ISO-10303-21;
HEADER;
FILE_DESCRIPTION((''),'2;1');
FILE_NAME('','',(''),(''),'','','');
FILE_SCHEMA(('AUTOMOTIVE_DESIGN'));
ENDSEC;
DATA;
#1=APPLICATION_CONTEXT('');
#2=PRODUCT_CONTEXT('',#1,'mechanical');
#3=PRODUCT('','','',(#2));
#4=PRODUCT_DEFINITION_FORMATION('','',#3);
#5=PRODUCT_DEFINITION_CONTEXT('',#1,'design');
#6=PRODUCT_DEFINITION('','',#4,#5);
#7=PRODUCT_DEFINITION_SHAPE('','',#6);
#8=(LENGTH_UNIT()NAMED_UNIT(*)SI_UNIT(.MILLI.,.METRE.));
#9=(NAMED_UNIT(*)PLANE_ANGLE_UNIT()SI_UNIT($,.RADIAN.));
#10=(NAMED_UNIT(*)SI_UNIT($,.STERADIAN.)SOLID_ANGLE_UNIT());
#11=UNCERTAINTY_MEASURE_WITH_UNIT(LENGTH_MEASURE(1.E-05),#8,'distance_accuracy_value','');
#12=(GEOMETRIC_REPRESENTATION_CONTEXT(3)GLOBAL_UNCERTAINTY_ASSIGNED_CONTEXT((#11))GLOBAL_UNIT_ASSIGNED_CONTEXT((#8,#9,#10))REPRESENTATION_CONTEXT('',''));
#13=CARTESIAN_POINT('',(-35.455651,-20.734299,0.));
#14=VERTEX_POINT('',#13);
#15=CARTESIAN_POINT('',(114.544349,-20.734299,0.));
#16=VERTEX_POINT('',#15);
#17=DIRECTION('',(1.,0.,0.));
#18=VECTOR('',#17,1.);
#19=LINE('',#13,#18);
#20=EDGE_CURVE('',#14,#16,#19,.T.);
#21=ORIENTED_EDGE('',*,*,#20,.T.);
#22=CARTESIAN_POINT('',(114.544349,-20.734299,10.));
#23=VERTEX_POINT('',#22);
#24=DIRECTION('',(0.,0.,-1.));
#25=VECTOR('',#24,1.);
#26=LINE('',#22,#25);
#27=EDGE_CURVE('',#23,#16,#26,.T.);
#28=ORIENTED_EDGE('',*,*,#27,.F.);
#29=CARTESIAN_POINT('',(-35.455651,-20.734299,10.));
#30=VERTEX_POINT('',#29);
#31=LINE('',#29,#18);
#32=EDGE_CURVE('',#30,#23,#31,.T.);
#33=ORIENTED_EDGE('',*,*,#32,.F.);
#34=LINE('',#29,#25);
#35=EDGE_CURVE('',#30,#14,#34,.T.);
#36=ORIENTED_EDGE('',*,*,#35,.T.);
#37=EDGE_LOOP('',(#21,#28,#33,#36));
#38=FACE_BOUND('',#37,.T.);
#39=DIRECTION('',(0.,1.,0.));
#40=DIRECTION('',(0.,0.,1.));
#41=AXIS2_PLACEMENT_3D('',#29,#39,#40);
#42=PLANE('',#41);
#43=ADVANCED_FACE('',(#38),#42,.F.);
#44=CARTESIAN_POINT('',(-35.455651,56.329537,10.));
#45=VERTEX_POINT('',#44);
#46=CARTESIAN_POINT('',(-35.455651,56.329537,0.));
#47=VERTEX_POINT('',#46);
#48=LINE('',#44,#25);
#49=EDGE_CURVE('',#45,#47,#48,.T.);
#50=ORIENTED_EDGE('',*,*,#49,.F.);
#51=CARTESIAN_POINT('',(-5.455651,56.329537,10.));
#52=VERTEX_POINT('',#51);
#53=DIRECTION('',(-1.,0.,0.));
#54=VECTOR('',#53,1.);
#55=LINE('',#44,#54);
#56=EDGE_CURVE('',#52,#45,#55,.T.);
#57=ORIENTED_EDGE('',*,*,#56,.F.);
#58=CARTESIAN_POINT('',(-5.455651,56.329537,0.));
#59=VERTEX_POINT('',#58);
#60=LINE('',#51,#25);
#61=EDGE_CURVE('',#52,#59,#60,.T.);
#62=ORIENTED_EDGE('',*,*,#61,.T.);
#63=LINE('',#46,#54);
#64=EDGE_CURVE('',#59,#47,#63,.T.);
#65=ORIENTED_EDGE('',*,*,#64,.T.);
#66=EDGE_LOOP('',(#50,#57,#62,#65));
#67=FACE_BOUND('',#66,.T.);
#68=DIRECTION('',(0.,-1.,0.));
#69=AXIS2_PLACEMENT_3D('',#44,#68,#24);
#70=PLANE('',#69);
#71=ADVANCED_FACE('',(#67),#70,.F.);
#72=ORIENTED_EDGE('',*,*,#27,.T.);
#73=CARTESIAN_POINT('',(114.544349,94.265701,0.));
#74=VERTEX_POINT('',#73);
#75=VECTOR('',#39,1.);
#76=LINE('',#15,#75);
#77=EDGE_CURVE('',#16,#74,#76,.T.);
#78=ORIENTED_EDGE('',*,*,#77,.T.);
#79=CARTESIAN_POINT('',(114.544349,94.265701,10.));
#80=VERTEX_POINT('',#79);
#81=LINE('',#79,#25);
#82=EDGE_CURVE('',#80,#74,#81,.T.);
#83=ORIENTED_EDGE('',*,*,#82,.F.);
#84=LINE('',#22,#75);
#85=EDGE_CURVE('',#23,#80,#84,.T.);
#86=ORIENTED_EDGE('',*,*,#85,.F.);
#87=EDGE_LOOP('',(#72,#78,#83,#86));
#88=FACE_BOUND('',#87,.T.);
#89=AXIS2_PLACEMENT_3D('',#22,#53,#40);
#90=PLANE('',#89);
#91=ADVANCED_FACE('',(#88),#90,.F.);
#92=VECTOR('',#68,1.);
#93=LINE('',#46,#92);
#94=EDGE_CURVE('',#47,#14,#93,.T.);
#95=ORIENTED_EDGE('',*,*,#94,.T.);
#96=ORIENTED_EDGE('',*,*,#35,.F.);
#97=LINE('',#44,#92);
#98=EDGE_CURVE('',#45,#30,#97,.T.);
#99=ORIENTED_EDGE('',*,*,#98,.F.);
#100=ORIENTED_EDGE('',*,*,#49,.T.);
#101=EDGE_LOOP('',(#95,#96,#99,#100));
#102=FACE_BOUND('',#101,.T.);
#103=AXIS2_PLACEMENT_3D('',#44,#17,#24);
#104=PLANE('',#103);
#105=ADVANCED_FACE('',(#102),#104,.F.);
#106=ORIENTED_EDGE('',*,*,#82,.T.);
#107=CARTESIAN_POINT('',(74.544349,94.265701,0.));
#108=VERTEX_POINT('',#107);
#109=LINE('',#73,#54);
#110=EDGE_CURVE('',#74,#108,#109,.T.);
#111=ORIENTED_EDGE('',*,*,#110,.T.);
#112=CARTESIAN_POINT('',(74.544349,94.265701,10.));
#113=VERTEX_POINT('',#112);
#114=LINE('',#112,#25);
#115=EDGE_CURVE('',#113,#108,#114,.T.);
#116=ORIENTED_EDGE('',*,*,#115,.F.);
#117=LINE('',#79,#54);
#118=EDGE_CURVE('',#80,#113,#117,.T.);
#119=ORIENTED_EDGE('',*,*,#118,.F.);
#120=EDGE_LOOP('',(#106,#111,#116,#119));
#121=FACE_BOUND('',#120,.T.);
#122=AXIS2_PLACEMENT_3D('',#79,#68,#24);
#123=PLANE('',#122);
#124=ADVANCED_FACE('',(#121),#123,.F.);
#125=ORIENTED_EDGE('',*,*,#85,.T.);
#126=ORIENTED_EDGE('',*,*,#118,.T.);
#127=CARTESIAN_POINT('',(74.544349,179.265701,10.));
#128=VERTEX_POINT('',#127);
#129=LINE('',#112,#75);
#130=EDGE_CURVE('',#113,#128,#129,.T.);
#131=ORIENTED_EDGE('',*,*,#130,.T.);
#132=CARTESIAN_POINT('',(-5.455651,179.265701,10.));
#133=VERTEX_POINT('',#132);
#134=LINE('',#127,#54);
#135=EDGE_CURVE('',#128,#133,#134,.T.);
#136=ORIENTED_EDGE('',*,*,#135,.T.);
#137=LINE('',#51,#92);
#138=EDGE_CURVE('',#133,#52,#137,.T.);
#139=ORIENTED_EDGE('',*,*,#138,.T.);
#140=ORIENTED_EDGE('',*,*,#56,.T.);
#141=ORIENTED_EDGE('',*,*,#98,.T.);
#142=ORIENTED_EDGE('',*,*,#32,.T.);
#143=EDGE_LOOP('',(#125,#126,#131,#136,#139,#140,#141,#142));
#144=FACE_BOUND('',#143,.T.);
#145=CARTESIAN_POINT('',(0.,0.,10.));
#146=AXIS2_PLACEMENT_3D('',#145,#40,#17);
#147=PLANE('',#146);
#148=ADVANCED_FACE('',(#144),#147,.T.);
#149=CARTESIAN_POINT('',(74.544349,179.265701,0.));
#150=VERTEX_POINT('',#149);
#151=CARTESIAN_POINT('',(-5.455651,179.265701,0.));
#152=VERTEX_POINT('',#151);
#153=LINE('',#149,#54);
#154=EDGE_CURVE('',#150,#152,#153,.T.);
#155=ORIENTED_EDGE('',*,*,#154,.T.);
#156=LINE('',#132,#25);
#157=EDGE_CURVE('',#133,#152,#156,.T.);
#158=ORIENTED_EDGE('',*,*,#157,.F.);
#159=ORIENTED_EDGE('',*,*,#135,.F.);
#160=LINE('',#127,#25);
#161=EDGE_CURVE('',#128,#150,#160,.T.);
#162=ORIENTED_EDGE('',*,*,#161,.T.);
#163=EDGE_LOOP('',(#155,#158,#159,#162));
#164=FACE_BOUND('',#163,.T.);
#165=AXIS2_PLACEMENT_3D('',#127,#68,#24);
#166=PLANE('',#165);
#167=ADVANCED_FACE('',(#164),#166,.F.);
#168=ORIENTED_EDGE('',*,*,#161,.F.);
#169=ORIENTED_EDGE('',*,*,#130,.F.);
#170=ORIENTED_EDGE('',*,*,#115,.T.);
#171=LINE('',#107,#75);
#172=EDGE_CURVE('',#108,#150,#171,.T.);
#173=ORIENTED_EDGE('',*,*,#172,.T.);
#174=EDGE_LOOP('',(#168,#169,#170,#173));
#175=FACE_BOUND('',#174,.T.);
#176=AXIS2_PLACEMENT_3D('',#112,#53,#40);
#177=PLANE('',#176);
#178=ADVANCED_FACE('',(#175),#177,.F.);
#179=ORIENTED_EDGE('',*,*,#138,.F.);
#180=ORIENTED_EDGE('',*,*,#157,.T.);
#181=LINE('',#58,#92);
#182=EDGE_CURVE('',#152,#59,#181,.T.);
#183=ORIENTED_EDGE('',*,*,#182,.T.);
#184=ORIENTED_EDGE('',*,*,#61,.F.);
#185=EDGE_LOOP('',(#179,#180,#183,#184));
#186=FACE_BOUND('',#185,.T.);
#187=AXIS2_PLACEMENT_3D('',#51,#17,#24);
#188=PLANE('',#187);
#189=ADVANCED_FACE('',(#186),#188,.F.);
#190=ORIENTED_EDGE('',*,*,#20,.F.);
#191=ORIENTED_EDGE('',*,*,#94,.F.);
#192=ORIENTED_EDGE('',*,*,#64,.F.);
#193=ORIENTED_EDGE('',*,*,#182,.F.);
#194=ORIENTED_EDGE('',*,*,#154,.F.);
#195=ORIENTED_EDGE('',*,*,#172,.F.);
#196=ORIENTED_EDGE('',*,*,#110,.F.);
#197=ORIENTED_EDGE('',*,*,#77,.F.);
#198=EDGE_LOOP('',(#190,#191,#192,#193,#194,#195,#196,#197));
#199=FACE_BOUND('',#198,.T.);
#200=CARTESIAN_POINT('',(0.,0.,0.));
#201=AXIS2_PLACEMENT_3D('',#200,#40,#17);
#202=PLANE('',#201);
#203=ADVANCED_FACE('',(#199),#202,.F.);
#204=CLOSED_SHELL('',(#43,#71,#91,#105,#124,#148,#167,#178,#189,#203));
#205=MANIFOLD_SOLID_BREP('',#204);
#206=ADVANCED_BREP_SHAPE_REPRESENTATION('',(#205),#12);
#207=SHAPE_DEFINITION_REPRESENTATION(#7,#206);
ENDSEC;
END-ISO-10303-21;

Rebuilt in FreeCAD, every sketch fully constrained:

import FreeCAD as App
import Part
import Sketcher
Q = App.Units.Quantity


def add_polygon(sketch, points):
    """Adds a closed chain of lines whose ends are joined by coincident constraints."""
    first, n = sketch.GeometryCount, len(points)
    for a, b in zip(points, points[1:] + points[:1]):
        sketch.addGeometry(Part.LineSegment(App.Vector(*a, 0), App.Vector(*b, 0)), False)
    for i in range(n):
        sketch.addConstraint(Sketcher.Constraint("Coincident", first + i, 2, first + (i + 1) % n, 1))

doc = App.newDocument("Part")
body = doc.addObject("PartDesign::Body", "Body")

sketch1 = body.newObject("Sketcher::SketchObject", "Sketch")
sketch1.AttachmentSupport = (doc.getObject("XY_Plane"), [""])
sketch1.MapMode = "FlatFace"
add_polygon(sketch1, [(-35.455651, -20.734299), (114.544349, -20.734299), (114.544349, 94.265701), (74.544349, 94.265701), (74.544349, 179.265701), (-5.455651, 179.265701), (-5.455651, 56.329537), (-35.455651, 56.329537)])
sketch1.addConstraint([
    Sketcher.Constraint("Horizontal", 0),
    Sketcher.Constraint("Vertical", 1),
    Sketcher.Constraint("Horizontal", 2),
    Sketcher.Constraint("Vertical", 3),
    Sketcher.Constraint("Horizontal", 4),
    Sketcher.Constraint("Vertical", 5),
    Sketcher.Constraint("Horizontal", 6),
    Sketcher.Constraint("Vertical", 7),
    Sketcher.Constraint("DistanceX", 0, 1, 0, 2, Q("150 mm")),
    Sketcher.Constraint("DistanceX", 2, 2, 2, 1, Q("40 mm")),
    Sketcher.Constraint("DistanceX", 4, 2, 4, 1, Q("80 mm")),
    Sketcher.Constraint("DistanceY", 1, 1, 1, 2, Q("115 mm")),
    Sketcher.Constraint("DistanceY", 3, 1, 3, 2, Q("85 mm")),
    Sketcher.Constraint("DistanceY", 0, 2, -1, 1, Q("20.734299 mm")),
    Sketcher.Constraint("DistanceY", 5, 2, 5, 1, Q("122.936164 mm")),
    Sketcher.Constraint("DistanceX", -1, 1, 0, 2, Q("114.544349 mm")),
])
pad1 = body.newObject("PartDesign::Pad", "Pad")
pad1.Profile = sketch1
pad1.Length = 10

doc.recompute()
